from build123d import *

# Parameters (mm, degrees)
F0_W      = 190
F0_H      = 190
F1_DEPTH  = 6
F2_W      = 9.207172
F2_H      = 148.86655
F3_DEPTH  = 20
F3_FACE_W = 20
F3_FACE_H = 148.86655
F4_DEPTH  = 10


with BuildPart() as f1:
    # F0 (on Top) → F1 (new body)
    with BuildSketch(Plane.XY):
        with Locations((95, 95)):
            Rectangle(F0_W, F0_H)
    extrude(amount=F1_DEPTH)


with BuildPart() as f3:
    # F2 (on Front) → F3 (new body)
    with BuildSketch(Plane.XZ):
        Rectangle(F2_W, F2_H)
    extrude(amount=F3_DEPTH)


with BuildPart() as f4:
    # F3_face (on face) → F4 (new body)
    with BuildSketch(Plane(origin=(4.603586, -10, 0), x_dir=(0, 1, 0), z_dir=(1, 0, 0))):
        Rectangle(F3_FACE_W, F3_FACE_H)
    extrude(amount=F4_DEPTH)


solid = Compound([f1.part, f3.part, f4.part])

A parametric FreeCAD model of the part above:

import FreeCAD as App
import Part
import Sketcher

V = App.Vector

doc = App.newDocument("Part")
body = doc.addObject("PartDesign::Body", "Body")

# Sketch on XY plane
sketch1 = doc.addObject("Sketcher::SketchObject", "Sketch")
body.addObject(sketch1)
sketch1.AttachmentSupport = (doc.XY_Plane, [""])
sketch1.MapMode = "FlatFace"
sketch1.addGeometry(Part.LineSegment(V(0, 190, 0), V(0, 0, 0)), False)
sketch1.addGeometry(Part.LineSegment(V(0, 0, 0), V(190, 0, 0)), False)
sketch1.addGeometry(Part.LineSegment(V(190, 0, 0), V(190, 190, 0)), False)
sketch1.addGeometry(Part.LineSegment(V(190, 190, 0), V(0, 190, 0)), False)
sketch1.addConstraint(Sketcher.Constraint("Coincident", 0, 2, 1, 1))
sketch1.addConstraint(Sketcher.Constraint("Coincident", 1, 2, 2, 1))
sketch1.addConstraint(Sketcher.Constraint("Coincident", 2, 2, 3, 1))
sketch1.addConstraint(Sketcher.Constraint("Coincident", 3, 2, 0, 1))
sketch1.addConstraint(Sketcher.Constraint("Vertical", 0))
sketch1.addConstraint(Sketcher.Constraint("Horizontal", 1))
sketch1.addConstraint(Sketcher.Constraint("Vertical", 2))
sketch1.addConstraint(Sketcher.Constraint("Horizontal", 3))
sketch1.addConstraint(Sketcher.Constraint("Coincident", 0, 2, -1, 1))
sketch1.addConstraint(Sketcher.Constraint("Equal", 3, 0))
sketch1.addConstraint(Sketcher.Constraint("DistanceX", 1, 1, 1, 2, 190.0))
pad1 = doc.addObject("PartDesign::Pad", "Pad")
body.addObject(pad1)
pad1.Profile = sketch1
pad1.Length = 6
body2 = doc.addObject("PartDesign::Body", "Body001")

# Sketch on XZ plane
sketch2 = doc.addObject("Sketcher::SketchObject", "Sketch001")
body2.addObject(sketch2)
sketch2.AttachmentSupport = (doc.getObject("XZ_Plane001"), [""])
sketch2.MapMode = "FlatFace"
sketch2.addGeometry(Part.LineSegment(V(-4.603586, 74.433275, 0), V(-4.603586, -74.433275, 0)), False)
sketch2.addGeometry(Part.LineSegment(V(-4.603586, -74.433275, 0), V(4.603586, -74.433275, 0)), False)
sketch2.addGeometry(Part.LineSegment(V(4.603586, -74.433275, 0), V(4.603586, 74.433275, 0)), False)
sketch2.addGeometry(Part.LineSegment(V(4.603586, 74.433275, 0), V(-4.603586, 74.433275, 0)), False)
sketch2.addConstraint(Sketcher.Constraint("Coincident", 0, 2, 1, 1))
sketch2.addConstraint(Sketcher.Constraint("Coincident", 1, 2, 2, 1))
sketch2.addConstraint(Sketcher.Constraint("Coincident", 2, 2, 3, 1))
sketch2.addConstraint(Sketcher.Constraint("Coincident", 3, 2, 0, 1))
sketch2.addConstraint(Sketcher.Constraint("Vertical", 0))
sketch2.addConstraint(Sketcher.Constraint("Horizontal", 1))
sketch2.addConstraint(Sketcher.Constraint("Vertical", 2))
sketch2.addConstraint(Sketcher.Constraint("Horizontal", 3))
sketch2.addConstraint(Sketcher.Constraint("Symmetric", 0, 2, 2, 2, -1, 1))
sketch2.addConstraint(Sketcher.Constraint("DistanceY", 0, 2, 0, 1, 148.86655))
sketch2.addConstraint(Sketcher.Constraint("DistanceX", 1, 1, 1, 2, 9.207172))
pad2 = doc.addObject("PartDesign::Pad", "Pad001")
body2.addObject(pad2)
pad2.Profile = sketch2
pad2.Length = 20
body3 = doc.addObject("PartDesign::Body", "Body002")

# Sketch on YZ plane
sketch3 = doc.addObject("Sketcher::SketchObject", "Sketch002")
body3.addObject(sketch3)
sketch3.AttachmentSupport = (doc.getObject("YZ_Plane002"), [""])
sketch3.MapMode = "FlatFace"
sketch3.AttachmentOffset = App.Placement(V(0, 0, 4.603586), App.Rotation())
sketch3.addGeometry(Part.LineSegment(V(-20, 74.433275, 0), V(-20, -74.433275, 0)), False)
sketch3.addGeometry(Part.LineSegment(V(-20, -74.433275, 0), V(0, -74.433275, 0)), False)
sketch3.addGeometry(Part.LineSegment(V(0, -74.433275, 0), V(0, 74.433275, 0)), False)
sketch3.addGeometry(Part.LineSegment(V(0, 74.433275, 0), V(-20, 74.433275, 0)), False)
sketch3.addConstraint(Sketcher.Constraint("Coincident", 0, 2, 1, 1))
sketch3.addConstraint(Sketcher.Constraint("Coincident", 1, 2, 2, 1))
sketch3.addConstraint(Sketcher.Constraint("Coincident", 2, 2, 3, 1))
sketch3.addConstraint(Sketcher.Constraint("Coincident", 3, 2, 0, 1))
sketch3.addConstraint(Sketcher.Constraint("Vertical", 0))
sketch3.addConstraint(Sketcher.Constraint("Horizontal", 1))
sketch3.addConstraint(Sketcher.Constraint("Vertical", 2))
sketch3.addConstraint(Sketcher.Constraint("Horizontal", 3))
sketch3.addConstraint(Sketcher.Constraint("Symmetric", 1, 2, 2, 2, -1, 1))
sketch3.addConstraint(Sketcher.Constraint("DistanceX", 1, 1, 1, 2, 20.0))
sketch3.addConstraint(Sketcher.Constraint("DistanceY", 0, 2, 0, 1, 148.86655))
pad3 = doc.addObject("PartDesign::Pad", "Pad002")
body3.addObject(pad3)
pad3.Profile = sketch3
pad3.Length = 10

doc.recompute()
